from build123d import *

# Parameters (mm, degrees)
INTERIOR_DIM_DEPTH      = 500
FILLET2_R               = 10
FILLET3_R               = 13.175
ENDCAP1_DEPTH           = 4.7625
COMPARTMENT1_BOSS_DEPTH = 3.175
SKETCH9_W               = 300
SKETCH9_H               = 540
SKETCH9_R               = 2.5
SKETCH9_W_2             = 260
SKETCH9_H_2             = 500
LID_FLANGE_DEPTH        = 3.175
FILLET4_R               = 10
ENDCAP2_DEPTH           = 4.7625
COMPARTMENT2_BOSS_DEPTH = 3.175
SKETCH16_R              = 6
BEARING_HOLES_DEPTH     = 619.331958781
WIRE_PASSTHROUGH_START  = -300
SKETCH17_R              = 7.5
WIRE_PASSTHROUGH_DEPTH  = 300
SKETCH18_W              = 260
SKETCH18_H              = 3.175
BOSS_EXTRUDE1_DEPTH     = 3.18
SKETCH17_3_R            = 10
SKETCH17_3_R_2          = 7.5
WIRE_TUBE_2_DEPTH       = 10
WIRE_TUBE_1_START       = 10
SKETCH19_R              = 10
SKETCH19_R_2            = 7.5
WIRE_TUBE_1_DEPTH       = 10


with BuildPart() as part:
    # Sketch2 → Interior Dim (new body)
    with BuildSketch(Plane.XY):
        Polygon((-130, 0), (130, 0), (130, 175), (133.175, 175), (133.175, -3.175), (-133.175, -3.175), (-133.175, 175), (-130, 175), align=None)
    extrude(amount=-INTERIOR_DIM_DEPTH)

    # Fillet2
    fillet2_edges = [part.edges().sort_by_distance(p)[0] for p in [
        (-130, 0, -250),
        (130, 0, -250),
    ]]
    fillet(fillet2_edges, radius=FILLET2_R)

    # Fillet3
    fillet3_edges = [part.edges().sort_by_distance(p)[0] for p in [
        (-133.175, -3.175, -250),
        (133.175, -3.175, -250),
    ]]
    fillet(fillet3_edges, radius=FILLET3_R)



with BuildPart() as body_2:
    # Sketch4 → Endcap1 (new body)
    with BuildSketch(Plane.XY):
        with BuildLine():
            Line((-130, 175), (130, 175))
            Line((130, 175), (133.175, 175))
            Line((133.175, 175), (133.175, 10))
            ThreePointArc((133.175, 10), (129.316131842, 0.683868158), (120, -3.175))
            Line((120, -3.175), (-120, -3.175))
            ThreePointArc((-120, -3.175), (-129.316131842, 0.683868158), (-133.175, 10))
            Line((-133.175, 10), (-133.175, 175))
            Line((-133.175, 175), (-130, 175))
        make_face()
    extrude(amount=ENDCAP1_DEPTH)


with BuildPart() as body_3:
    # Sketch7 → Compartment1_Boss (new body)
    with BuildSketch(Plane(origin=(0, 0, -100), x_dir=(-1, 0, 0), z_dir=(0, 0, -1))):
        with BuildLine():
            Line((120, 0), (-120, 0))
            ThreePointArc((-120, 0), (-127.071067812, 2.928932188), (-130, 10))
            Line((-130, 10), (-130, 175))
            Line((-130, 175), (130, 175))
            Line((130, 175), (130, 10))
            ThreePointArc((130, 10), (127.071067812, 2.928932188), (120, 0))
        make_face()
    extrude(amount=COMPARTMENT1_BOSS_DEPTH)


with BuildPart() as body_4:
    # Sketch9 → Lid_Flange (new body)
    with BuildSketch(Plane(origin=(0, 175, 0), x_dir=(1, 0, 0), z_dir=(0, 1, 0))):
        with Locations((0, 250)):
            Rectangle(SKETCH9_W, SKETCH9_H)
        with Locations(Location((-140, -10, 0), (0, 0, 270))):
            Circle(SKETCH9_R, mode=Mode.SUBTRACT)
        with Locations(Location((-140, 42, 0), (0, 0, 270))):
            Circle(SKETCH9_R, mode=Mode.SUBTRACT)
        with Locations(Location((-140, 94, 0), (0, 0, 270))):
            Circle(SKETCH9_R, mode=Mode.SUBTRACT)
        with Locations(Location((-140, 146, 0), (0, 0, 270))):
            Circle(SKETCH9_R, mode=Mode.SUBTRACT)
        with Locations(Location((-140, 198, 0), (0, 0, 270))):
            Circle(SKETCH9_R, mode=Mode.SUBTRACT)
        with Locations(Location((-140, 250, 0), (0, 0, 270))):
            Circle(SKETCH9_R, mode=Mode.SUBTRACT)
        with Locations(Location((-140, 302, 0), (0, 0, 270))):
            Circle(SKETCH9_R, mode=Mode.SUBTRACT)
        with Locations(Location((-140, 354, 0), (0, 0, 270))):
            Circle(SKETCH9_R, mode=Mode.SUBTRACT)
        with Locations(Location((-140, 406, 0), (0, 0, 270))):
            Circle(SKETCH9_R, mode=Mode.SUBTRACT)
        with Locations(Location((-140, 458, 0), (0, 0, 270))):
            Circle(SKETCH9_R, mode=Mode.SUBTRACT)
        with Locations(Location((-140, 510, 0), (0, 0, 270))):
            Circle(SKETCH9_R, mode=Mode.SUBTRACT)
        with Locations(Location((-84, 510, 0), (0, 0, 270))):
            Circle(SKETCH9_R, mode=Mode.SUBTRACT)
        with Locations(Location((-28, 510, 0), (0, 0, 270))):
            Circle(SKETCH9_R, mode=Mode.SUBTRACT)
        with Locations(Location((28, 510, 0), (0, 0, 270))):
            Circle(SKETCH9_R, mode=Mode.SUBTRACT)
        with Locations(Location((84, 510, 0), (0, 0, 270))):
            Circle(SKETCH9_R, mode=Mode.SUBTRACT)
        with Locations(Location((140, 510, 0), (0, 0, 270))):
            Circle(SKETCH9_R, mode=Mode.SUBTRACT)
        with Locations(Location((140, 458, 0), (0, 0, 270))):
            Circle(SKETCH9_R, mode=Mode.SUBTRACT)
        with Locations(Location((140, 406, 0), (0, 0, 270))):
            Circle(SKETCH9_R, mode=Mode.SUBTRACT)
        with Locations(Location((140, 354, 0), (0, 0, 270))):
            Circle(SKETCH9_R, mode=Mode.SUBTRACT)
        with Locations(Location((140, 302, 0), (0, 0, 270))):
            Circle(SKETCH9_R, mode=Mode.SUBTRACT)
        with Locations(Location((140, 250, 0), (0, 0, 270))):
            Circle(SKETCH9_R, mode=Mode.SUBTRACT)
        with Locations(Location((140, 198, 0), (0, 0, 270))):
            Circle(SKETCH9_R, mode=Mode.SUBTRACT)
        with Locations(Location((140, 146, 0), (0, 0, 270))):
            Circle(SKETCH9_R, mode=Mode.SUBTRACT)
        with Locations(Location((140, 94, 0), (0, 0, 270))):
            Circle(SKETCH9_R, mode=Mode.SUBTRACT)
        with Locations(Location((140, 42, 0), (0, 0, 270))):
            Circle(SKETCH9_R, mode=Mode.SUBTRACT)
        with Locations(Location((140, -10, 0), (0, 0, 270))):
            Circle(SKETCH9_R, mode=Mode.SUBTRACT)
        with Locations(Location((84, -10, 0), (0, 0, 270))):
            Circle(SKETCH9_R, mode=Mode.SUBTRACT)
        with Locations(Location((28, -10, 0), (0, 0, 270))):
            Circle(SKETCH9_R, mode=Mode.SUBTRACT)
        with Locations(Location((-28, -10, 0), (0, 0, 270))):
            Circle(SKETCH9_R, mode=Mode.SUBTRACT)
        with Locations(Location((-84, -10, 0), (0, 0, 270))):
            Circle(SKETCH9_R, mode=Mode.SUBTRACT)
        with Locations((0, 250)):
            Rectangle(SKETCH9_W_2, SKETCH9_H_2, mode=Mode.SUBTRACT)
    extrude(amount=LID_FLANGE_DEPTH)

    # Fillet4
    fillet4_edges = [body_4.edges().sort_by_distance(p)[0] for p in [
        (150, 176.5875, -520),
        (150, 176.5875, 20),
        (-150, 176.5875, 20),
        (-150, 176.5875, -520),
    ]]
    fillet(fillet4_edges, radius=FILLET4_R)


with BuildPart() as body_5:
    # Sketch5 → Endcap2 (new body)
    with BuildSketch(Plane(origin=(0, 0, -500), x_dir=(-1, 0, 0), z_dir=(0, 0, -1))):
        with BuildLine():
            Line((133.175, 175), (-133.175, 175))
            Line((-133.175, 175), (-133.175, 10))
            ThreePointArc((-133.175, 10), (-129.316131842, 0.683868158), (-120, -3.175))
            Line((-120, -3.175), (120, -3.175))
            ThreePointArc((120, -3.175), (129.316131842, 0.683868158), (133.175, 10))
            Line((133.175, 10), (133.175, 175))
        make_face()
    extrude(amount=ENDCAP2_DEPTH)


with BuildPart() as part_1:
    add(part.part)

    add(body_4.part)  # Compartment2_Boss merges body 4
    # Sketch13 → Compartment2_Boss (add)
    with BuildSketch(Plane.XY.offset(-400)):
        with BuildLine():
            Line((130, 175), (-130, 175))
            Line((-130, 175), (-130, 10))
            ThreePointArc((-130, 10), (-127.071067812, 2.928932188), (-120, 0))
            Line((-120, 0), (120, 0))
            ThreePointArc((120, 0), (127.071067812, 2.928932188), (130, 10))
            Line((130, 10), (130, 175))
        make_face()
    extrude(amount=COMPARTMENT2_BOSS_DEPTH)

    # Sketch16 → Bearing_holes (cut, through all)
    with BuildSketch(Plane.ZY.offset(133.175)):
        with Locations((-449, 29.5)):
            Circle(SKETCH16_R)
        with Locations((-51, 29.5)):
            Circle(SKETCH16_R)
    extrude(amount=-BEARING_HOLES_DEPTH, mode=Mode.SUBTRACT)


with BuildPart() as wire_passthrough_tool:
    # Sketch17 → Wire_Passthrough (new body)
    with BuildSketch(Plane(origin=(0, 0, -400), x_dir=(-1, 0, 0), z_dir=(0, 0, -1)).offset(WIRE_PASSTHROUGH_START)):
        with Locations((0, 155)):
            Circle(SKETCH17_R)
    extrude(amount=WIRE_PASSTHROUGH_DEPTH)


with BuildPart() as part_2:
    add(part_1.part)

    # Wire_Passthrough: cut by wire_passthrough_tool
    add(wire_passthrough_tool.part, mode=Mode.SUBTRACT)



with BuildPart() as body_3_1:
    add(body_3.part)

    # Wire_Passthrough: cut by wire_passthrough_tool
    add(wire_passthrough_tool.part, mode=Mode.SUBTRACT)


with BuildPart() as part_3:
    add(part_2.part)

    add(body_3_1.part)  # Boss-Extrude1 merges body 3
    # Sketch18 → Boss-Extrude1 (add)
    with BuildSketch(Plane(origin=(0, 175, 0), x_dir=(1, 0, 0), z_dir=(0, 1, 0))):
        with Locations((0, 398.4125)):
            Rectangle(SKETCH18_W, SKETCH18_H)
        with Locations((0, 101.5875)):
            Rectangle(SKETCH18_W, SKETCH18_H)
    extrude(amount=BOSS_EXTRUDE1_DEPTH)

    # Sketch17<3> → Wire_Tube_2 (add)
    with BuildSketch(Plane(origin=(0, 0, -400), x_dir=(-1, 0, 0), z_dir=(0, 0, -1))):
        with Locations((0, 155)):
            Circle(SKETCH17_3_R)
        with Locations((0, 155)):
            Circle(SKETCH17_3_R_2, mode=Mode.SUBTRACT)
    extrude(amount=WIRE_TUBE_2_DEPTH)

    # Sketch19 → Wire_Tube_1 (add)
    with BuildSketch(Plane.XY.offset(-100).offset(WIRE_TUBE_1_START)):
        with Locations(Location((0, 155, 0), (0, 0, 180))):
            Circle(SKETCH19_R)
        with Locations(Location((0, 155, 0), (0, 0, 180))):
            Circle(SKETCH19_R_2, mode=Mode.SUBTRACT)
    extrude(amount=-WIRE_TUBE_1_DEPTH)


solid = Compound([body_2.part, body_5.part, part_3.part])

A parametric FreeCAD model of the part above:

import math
import FreeCAD as App
import Part
import Sketcher


def edges_at(feature, points):
    """Names of the edges that pass closest to the given points."""
    edges = feature.Shape.Edges
    near = lambda p: min(range(len(edges)), key=lambda i: edges[i].distToShape(Part.Vertex(*p))[0])
    return sorted({f"Edge{near(p) + 1}" for p in points})


def add_polygon(sketch, points):
    """Adds a closed chain of lines whose ends are joined by coincident constraints."""
    first, n = sketch.GeometryCount, len(points)
    for a, b in zip(points, points[1:] + points[:1]):
        sketch.addGeometry(Part.LineSegment(App.Vector(*a, 0), App.Vector(*b, 0)), False)
    for i in range(n):
        sketch.addConstraint(Sketcher.Constraint("Coincident", first + i, 2, first + (i + 1) % n, 1))

doc = App.newDocument("Part")
body = doc.addObject("PartDesign::Body", "Body")

# Sketch on XY plane
sketch1 = body.newObject("Sketcher::SketchObject", "Sketch")
sketch1.AttachmentSupport = (doc.getObject("XY_Plane"), [""])
sketch1.MapMode = "FlatFace"
add_polygon(sketch1, [(130, 0), (-130, 0), (-130, 175), (-133.2, 175), (-133.2, -3.2), (133.2, -3.2), (133.2, 175), (130, 175)])  # lines 0-7
sketch1.addConstraint([
    Sketcher.Constraint("Horizontal", 0),
    Sketcher.Constraint("Vertical", 1),
    Sketcher.Constraint("Horizontal", 2),
    Sketcher.Constraint("Vertical", 3),
    Sketcher.Constraint("Horizontal", 4),
    Sketcher.Constraint("Vertical", 5),
    Sketcher.Constraint("Horizontal", 6),
    Sketcher.Constraint("Vertical", 7),
    Sketcher.Constraint("Symmetric", 0, 2, 7, 2, -1, 1),
    Sketcher.Constraint("Symmetric", 2, 2, 5, 2, -2),
    Sketcher.Constraint("DistanceX", 0, 2, 0, 1, 260.0),
    Sketcher.Constraint("DistanceY", 1, 1, 1, 2, 175.0),
    Sketcher.Constraint("DistanceX", 4, 1, 4, 2, 266.35),
    Sketcher.Constraint("DistanceY", 3, 2, 3, 1, 178.175),
])
pad1 = body.newObject("PartDesign::Pad", "Pad")
pad1.Profile = sketch1
pad1.Length = 500
pad1.Reversed = True
doc.recompute()

fillet = body.newObject("PartDesign::Fillet", "Fillet")
fillet.Base = (pad1, edges_at(pad1, [(-130, 0, -250), (130, 0, -250)]))
fillet.Radius = 10
doc.recompute()

fillet2 = body.newObject("PartDesign::Fillet", "Fillet001")
fillet2.Base = (fillet, edges_at(fillet, [(-133.175, -3.175, -250), (133.175, -3.175, -250)]))
fillet2.Radius = 13.175
body2 = doc.addObject("PartDesign::Body", "Body001")

# Sketch on XY plane
sketch2 = body2.newObject("Sketcher::SketchObject", "Sketch001")
sketch2.AttachmentSupport = (doc.getObject("XY_Plane001"), [""])
sketch2.MapMode = "FlatFace"
sketch2.addGeometry([
    Part.LineSegment(App.Vector(133, 10, 0), App.Vector(133, 175, 0)),  # 0
    Part.LineSegment(App.Vector(133, 175, 0), App.Vector(-133, 175, 0)),  # 1
    Part.LineSegment(App.Vector(-133, 175, 0), App.Vector(-133, 10, 0)),  # 2
    Part.ArcOfCircle(Part.Circle(App.Vector(-120, 10, 0), App.Vector(0, 0, 1), 13), math.radians(180), math.radians(270)),  # 3
    Part.LineSegment(App.Vector(-120, -3, 0), App.Vector(120, -3, 0)),  # 4
    Part.ArcOfCircle(Part.Circle(App.Vector(120, 10, 0), App.Vector(0, 0, 1), 13), math.radians(-90), math.radians(0)),  # 5
], False)
sketch2.addConstraint([
    Sketcher.Constraint("Coincident", 0, 2, 1, 1),
    Sketcher.Constraint("Coincident", 1, 2, 2, 1),
    Sketcher.Constraint("Tangent", 2, 2, 3, 1),
    Sketcher.Constraint("Tangent", 3, 2, 4, 1),
    Sketcher.Constraint("Tangent", 4, 2, 5, 1),
    Sketcher.Constraint("Tangent", 5, 2, 0, 1),
    Sketcher.Constraint("Vertical", 0),
    Sketcher.Constraint("Horizontal", 1),
    Sketcher.Constraint("Vertical", 2),
    Sketcher.Constraint("Horizontal", 4),
    Sketcher.Constraint("Equal", 3, 5),
    Sketcher.Constraint("DistanceX", 4, 1, 4, 2, 240.0),
    Sketcher.Constraint("DistanceY", 0, 1, 0, 2, 165.0),
    Sketcher.Constraint("DistanceX", 3, 3, -1, 1, 120.0),
    Sketcher.Constraint("DistanceY", -1, 1, 3, 3, 10.0),
    Sketcher.Constraint("Radius", 3, 13.175),
])
pad2 = body2.newObject("PartDesign::Pad", "Pad001")
pad2.Profile = sketch2
pad2.Length = 4.7625
body3 = doc.addObject("PartDesign::Body", "Body002")

# Sketch on XY plane
sketch3 = body3.newObject("Sketcher::SketchObject", "Sketch002")
sketch3.AttachmentSupport = (doc.getObject("XY_Plane002"), [""])
sketch3.MapMode = "FlatFace"
sketch3.AttachmentOffset = App.Placement(App.Vector(0, 0, -100), App.Rotation())
sketch3.addGeometry([
    Part.LineSegment(App.Vector(120, 0, 0), App.Vector(-120, 0, 0)),  # 0
    Part.ArcOfCircle(Part.Circle(App.Vector(-120, 10, 0), App.Vector(0, 0, 1), 10), math.radians(180), math.radians(270)),  # 1
    Part.LineSegment(App.Vector(-130, 10, 0), App.Vector(-130, 175, 0)),  # 2
    Part.LineSegment(App.Vector(-130, 175, 0), App.Vector(130, 175, 0)),  # 3
    Part.LineSegment(App.Vector(130, 175, 0), App.Vector(130, 10, 0)),  # 4
    Part.ArcOfCircle(Part.Circle(App.Vector(120, 10, 0), App.Vector(0, 0, 1), 10), math.radians(-90), math.radians(0)),  # 5
], False)
sketch3.addConstraint([
    Sketcher.Constraint("Tangent", 0, 2, 1, 2),
    Sketcher.Constraint("Tangent", 1, 1, 2, 1),
    Sketcher.Constraint("Coincident", 2, 2, 3, 1),
    Sketcher.Constraint("Coincident", 3, 2, 4, 1),
    Sketcher.Constraint("Tangent", 4, 2, 5, 2),
    Sketcher.Constraint("Tangent", 5, 1, 0, 1),
    Sketcher.Constraint("Horizontal", 0),
    Sketcher.Constraint("Vertical", 2),
    Sketcher.Constraint("Horizontal", 3),
    Sketcher.Constraint("Vertical", 4),
    Sketcher.Constraint("Equal", 1, 5),
    Sketcher.Constraint("Symmetric", 0, 2, 5, 1, -1, 1),
    Sketcher.Constraint("Radius", 1, 10.0),
    Sketcher.Constraint("DistanceX", 0, 2, 0, 1, 240.0),
    Sketcher.Constraint("DistanceY", 2, 1, 2, 2, 165.0),
])
pad3 = body3.newObject("PartDesign::Pad", "Pad002")
pad3.Profile = sketch3
pad3.Length = 3.175
pad3.Reversed = True
body4 = doc.addObject("PartDesign::Body", "Body003")

# Sketch on XZ plane
sketch4 = body4.newObject("Sketcher::SketchObject", "Sketch003")
sketch4.AttachmentSupport = (doc.getObject("XZ_Plane003"), [""])
sketch4.MapMode = "FlatFace"
sketch4.AttachmentOffset = App.Placement(App.Vector(0, 0, -175), App.Rotation())
add_polygon(sketch4, [(-150, -520), (-150, 20), (150, 20), (150, -520)])  # lines 0-3
sketch4.addGeometry(Part.Circle(App.Vector(-140, 10, 0), App.Vector(0, 0, 1), 2.5), False)  # 4
sketch4.addGeometry(Part.Circle(App.Vector(-140, -42, 0), App.Vector(0, 0, 1), 2.5), False)  # 5
sketch4.addGeometry(Part.Circle(App.Vector(-84, 10, 0), App.Vector(0, 0, 1), 2.5), False)  # 6
sketch4.addGeometry(Part.Circle(App.Vector(-140, -94, 0), App.Vector(0, 0, 1), 2.5), False)  # 7
sketch4.addGeometry(Part.Circle(App.Vector(-28, 10, 0), App.Vector(0, 0, 1), 2.5), False)  # 8
sketch4.addGeometry(Part.Circle(App.Vector(-140, -146, 0), App.Vector(0, 0, 1), 2.5), False)  # 9
sketch4.addGeometry(Part.Circle(App.Vector(-140, -198, 0), App.Vector(0, 0, 1), 2.5), False)  # 10
sketch4.addGeometry(Part.Circle(App.Vector(28, 10, 0), App.Vector(0, 0, 1), 2.5), False)  # 11
sketch4.addGeometry(Part.Circle(App.Vector(84, 10, 0), App.Vector(0, 0, 1), 2.5), False)  # 12
sketch4.addGeometry(Part.Circle(App.Vector(140, 10, 0), App.Vector(0, 0, 1), 2.5), False)  # 13
sketch4.addGeometry(Part.Circle(App.Vector(140, -42, 0), App.Vector(0, 0, 1), 2.5), False)  # 14
sketch4.addGeometry(Part.Circle(App.Vector(140, -94, 0), App.Vector(0, 0, 1), 2.5), False)  # 15
sketch4.addGeometry(Part.Circle(App.Vector(140, -146, 0), App.Vector(0, 0, 1), 2.5), False)  # 16
sketch4.addGeometry(Part.Circle(App.Vector(140, -198, 0), App.Vector(0, 0, 1), 2.5), False)  # 17
sketch4.addGeometry(Part.Circle(App.Vector(-140, -250, 0), App.Vector(0, 0, 1), 2.5), False)  # 18
sketch4.addGeometry(Part.Circle(App.Vector(-140, -302, 0), App.Vector(0, 0, 1), 2.5), False)  # 19
sketch4.addGeometry(Part.Circle(App.Vector(-140, -354, 0), App.Vector(0, 0, 1), 2.5), False)  # 20
sketch4.addGeometry(Part.Circle(App.Vector(-140, -406, 0), App.Vector(0, 0, 1), 2.5), False)  # 21
sketch4.addGeometry(Part.Circle(App.Vector(-140, -458, 0), App.Vector(0, 0, 1), 2.5), False)  # 22
sketch4.addGeometry(Part.Circle(App.Vector(-140, -510, 0), App.Vector(0, 0, 1), 2.5), False)  # 23
sketch4.addGeometry(Part.Circle(App.Vector(-84, -510, 0), App.Vector(0, 0, 1), 2.5), False)  # 24
sketch4.addGeometry(Part.Circle(App.Vector(-28, -510, 0), App.Vector(0, 0, 1), 2.5), False)  # 25
add_polygon(sketch4, [(130, 0), (-130, 0), (-130, -500), (130, -500)])  # lines 26-29
sketch4.addGeometry(Part.Circle(App.Vector(140, -250, 0), App.Vector(0, 0, 1), 2.5), False)  # 30
sketch4.addGeometry(Part.Circle(App.Vector(140, -302, 0), App.Vector(0, 0, 1), 2.5), False)  # 31
sketch4.addGeometry(Part.Circle(App.Vector(140, -354, 0), App.Vector(0, 0, 1), 2.5), False)  # 32
sketch4.addGeometry(Part.Circle(App.Vector(28, -510, 0), App.Vector(0, 0, 1), 2.5), False)  # 33
sketch4.addGeometry(Part.Circle(App.Vector(140, -406, 0), App.Vector(0, 0, 1), 2.5), False)  # 34
sketch4.addGeometry(Part.Circle(App.Vector(84, -510, 0), App.Vector(0, 0, 1), 2.5), False)  # 35
sketch4.addGeometry(Part.Circle(App.Vector(140, -458, 0), App.Vector(0, 0, 1), 2.5), False)  # 36
sketch4.addGeometry(Part.Circle(App.Vector(140, -510, 0), App.Vector(0, 0, 1), 2.5), False)  # 37
sketch4.addConstraint([
    Sketcher.Constraint("Vertical", 0),
    Sketcher.Constraint("Horizontal", 1),
    Sketcher.Constraint("Vertical", 2),
    Sketcher.Constraint("Horizontal", 3),
    Sketcher.Constraint("Horizontal", 26),
    Sketcher.Constraint("Vertical", 27),
    Sketcher.Constraint("Horizontal", 28),
    Sketcher.Constraint("Vertical", 29),
    Sketcher.Constraint("Equal", 4, 5),
    Sketcher.Constraint("Equal", 5, 6),
    Sketcher.Constraint("Equal", 6, 7),
    Sketcher.Constraint("Equal", 7, 8),
    Sketcher.Constraint("Equal", 8, 9),
    Sketcher.Constraint("Equal", 9, 10),
    Sketcher.Constraint("Equal", 10, 11),
    Sketcher.Constraint("Equal", 11, 12),
    Sketcher.Constraint("Equal", 12, 13),
    Sketcher.Constraint("Equal", 13, 14),
    Sketcher.Constraint("Equal", 14, 15),
    Sketcher.Constraint("Equal", 15, 16),
    Sketcher.Constraint("Equal", 16, 17),
    Sketcher.Constraint("Equal", 17, 18),
    Sketcher.Constraint("Equal", 18, 19),
    Sketcher.Constraint("Equal", 19, 20),
    Sketcher.Constraint("Equal", 20, 21),
    Sketcher.Constraint("Equal", 21, 22),
    Sketcher.Constraint("Equal", 22, 23),
    Sketcher.Constraint("Equal", 23, 24),
    Sketcher.Constraint("Equal", 24, 25),
    Sketcher.Constraint("Equal", 25, 30),
    Sketcher.Constraint("Equal", 30, 31),
    Sketcher.Constraint("Equal", 31, 32),
    Sketcher.Constraint("Equal", 32, 33),
    Sketcher.Constraint("Equal", 33, 34),
    Sketcher.Constraint("Equal", 34, 35),
    Sketcher.Constraint("Equal", 35, 36),
    Sketcher.Constraint("Equal", 36, 37),
    Sketcher.Constraint("Symmetric", 26, 2, 29, 2, -1, 1),
    Sketcher.Constraint("Symmetric", 8, 3, 11, 3, -2),
    Sketcher.Constraint("Symmetric", 6, 3, 12, 3, -2),
    Sketcher.Constraint("Symmetric", 4, 3, 13, 3, -2),
    Sketcher.Constraint("Symmetric", 5, 3, 14, 3, -2),
    Sketcher.Constraint("Symmetric", 7, 3, 15, 3, -2),
    Sketcher.Constraint("Symmetric", 9, 3, 16, 3, -2),
    Sketcher.Constraint("Symmetric", 10, 3, 17, 3, -2),
    Sketcher.Constraint("Symmetric", 18, 3, 30, 3, -2),
    Sketcher.Constraint("Symmetric", 19, 3, 31, 3, -2),
    Sketcher.Constraint("Symmetric", 20, 3, 32, 3, -2),
    Sketcher.Constraint("Symmetric", 25, 3, 33, 3, -2),
    Sketcher.Constraint("Symmetric", 21, 3, 34, 3, -2),
    Sketcher.Constraint("Symmetric", 24, 3, 35, 3, -2),
    Sketcher.Constraint("Symmetric", 22, 3, 36, 3, -2),
    Sketcher.Constraint("Symmetric", 23, 3, 37, 3, -2),
    Sketcher.Constraint("Horizontal", 4, 3, 6, 3),
    Sketcher.Constraint("Horizontal", 6, 3, 8, 3),
    Sketcher.Constraint("Horizontal", 23, 3, 24, 3),
    Sketcher.Constraint("Horizontal", 24, 3, 25, 3),
    Sketcher.Constraint("Vertical", 4, 3, 5, 3),
    Sketcher.Constraint("Vertical", 5, 3, 7, 3),
    Sketcher.Constraint("Vertical", 7, 3, 9, 3),
    Sketcher.Constraint("Vertical", 9, 3, 10, 3),
    Sketcher.Constraint("Vertical", 10, 3, 18, 3),
    Sketcher.Constraint("Vertical", 18, 3, 19, 3),
    Sketcher.Constraint("Vertical", 19, 3, 20, 3),
    Sketcher.Constraint("Vertical", 20, 3, 21, 3),
    Sketcher.Constraint("Vertical", 21, 3, 22, 3),
    Sketcher.Constraint("Vertical", 22, 3, 23, 3),
    Sketcher.Constraint("Vertical", 6, 3, 24, 3),
    Sketcher.Constraint("Vertical", 8, 3, 25, 3),
    Sketcher.Constraint("Diameter", 4, 5.0),
    Sketcher.Constraint("DistanceX", 1, 1, 1, 2, 300.0),
    Sketcher.Constraint("DistanceX", 26, 2, 26, 1, 260.0),
    Sketcher.Constraint("DistanceY", 0, 1, 0, 2, 540.0),
    Sketcher.Constraint("DistanceY", 27, 2, 27, 1, 500.0),
    Sketcher.Constraint("DistanceX", 4, 3, -1, 1, 140.0),
    Sketcher.Constraint("DistanceY", -1, 1, 4, 3, 10.0),
    Sketcher.Constraint("DistanceY", 5, 3, -1, 1, 42.0),
    Sketcher.Constraint("DistanceX", 6, 3, -1, 1, 84.0),
    Sketcher.Constraint("DistanceY", 7, 3, -1, 1, 94.0),
    Sketcher.Constraint("DistanceX", 8, 3, -1, 1, 28.0),
    Sketcher.Constraint("DistanceY", 9, 3, -1, 1, 146.0),
    Sketcher.Constraint("DistanceY", 10, 3, -1, 1, 198.0),
    Sketcher.Constraint("DistanceY", 18, 3, -1, 1, 250.0),
    Sketcher.Constraint("DistanceY", 19, 3, -1, 1, 302.0),
    Sketcher.Constraint("DistanceY", 20, 3, -1, 1, 354.0),
    Sketcher.Constraint("DistanceY", 21, 3, -1, 1, 406.0),
    Sketcher.Constraint("DistanceY", 22, 3, -1, 1, 458.0),
    Sketcher.Constraint("DistanceY", 23, 3, -1, 1, 510.0),
    Sketcher.Constraint("DistanceX", 0, 2, -1, 1, 150.0),
    Sketcher.Constraint("DistanceY", -1, 1, 0, 2, 20.0),
])
pad4 = body4.newObject("PartDesign::Pad", "Pad003")
pad4.Profile = sketch4
pad4.Length = 3.175
pad4.Reversed = True
doc.recompute()

fillet3 = body4.newObject("PartDesign::Fillet", "Fillet002")
fillet3.Base = (pad4, edges_at(pad4, [
    (150, 176.588, -520),
    (150, 176.588, 20),
    (-150, 176.588, 20),
    (-150, 176.588, -520),
]))
fillet3.Radius = 10
body5 = doc.addObject("PartDesign::Body", "Body004")

# Sketch on XY plane
sketch5 = body5.newObject("Sketcher::SketchObject", "Sketch004")
sketch5.AttachmentSupport = (doc.getObject("XY_Plane004"), [""])
sketch5.MapMode = "FlatFace"
sketch5.AttachmentOffset = App.Placement(App.Vector(0, 0, -500), App.Rotation())
sketch5.addGeometry([
    Part.LineSegment(App.Vector(-133, 175, 0), App.Vector(133, 175, 0)),  # 0
    Part.LineSegment(App.Vector(133, 175, 0), App.Vector(133, 10, 0)),  # 1
    Part.ArcOfCircle(Part.Circle(App.Vector(120, 10, 0), App.Vector(0, 0, 1), 13), math.radians(-90), math.radians(0)),  # 2
    Part.LineSegment(App.Vector(120, -3, 0), App.Vector(-120, -3, 0)),  # 3
    Part.ArcOfCircle(Part.Circle(App.Vector(-120, 10, 0), App.Vector(0, 0, 1), 13), math.radians(180), math.radians(270)),  # 4
    Part.LineSegment(App.Vector(-133, 10, 0), App.Vector(-133, 175, 0)),  # 5
], False)
sketch5.addConstraint([
    Sketcher.Constraint("Coincident", 0, 2, 1, 1),
    Sketcher.Constraint("Tangent", 1, 2, 2, 2),
    Sketcher.Constraint("Tangent", 2, 1, 3, 1),
    Sketcher.Constraint("Tangent", 3, 2, 4, 2),
    Sketcher.Constraint("Tangent", 4, 1, 5, 1),
    Sketcher.Constraint("Coincident", 5, 2, 0, 1),
    Sketcher.Constraint("Horizontal", 0),
    Sketcher.Constraint("Vertical", 1),
    Sketcher.Constraint("Horizontal", 3),
    Sketcher.Constraint("Vertical", 5),
    Sketcher.Constraint("Equal", 2, 4),
    Sketcher.Constraint("DistanceX", 3, 2, 3, 1, 240.0),
    Sketcher.Constraint("DistanceY", 1, 2, 1, 1, 165.0),
    Sketcher.Constraint("DistanceX", -1, 1, 2, 3, 120.0),
    Sketcher.Constraint("DistanceY", -1, 1, 2, 3, 10.0),
    Sketcher.Constraint("Radius", 2, 13.175),
])
pad5 = body5.newObject("PartDesign::Pad", "Pad004")
pad5.Profile = sketch5
pad5.Length = 4.7625
pad5.Reversed = True
doc.recompute()

boolean = body.newObject("PartDesign::Boolean", "Boolean")
boolean.Type = "Fuse"
boolean.addObjects([body4])

# Sketch on XY plane
sketch6 = body.newObject("Sketcher::SketchObject", "Sketch005")
sketch6.AttachmentSupport = (doc.getObject("XY_Plane"), [""])
sketch6.MapMode = "FlatFace"
sketch6.AttachmentOffset = App.Placement(App.Vector(0, 0, -400), App.Rotation())
sketch6.addGeometry([
    Part.LineSegment(App.Vector(130, 175, 0), App.Vector(-130, 175, 0)),  # 0
    Part.LineSegment(App.Vector(-130, 175, 0), App.Vector(-130, 10, 0)),  # 1
    Part.ArcOfCircle(Part.Circle(App.Vector(-120, 10, 0), App.Vector(0, 0, 1), 10), math.radians(180), math.radians(270)),  # 2
    Part.LineSegment(App.Vector(-120, 0, 0), App.Vector(120, 0, 0)),  # 3
    Part.ArcOfCircle(Part.Circle(App.Vector(120, 10, 0), App.Vector(0, 0, 1), 10), math.radians(-90), math.radians(0)),  # 4
    Part.LineSegment(App.Vector(130, 10, 0), App.Vector(130, 175, 0)),  # 5
], False)
sketch6.addConstraint([
    Sketcher.Constraint("Coincident", 0, 2, 1, 1),
    Sketcher.Constraint("Tangent", 1, 2, 2, 1),
    Sketcher.Constraint("Tangent", 2, 2, 3, 1),
    Sketcher.Constraint("Tangent", 3, 2, 4, 1),
    Sketcher.Constraint("Tangent", 4, 2, 5, 1),
    Sketcher.Constraint("Coincident", 5, 2, 0, 1),
    Sketcher.Constraint("Horizontal", 0),
    Sketcher.Constraint("Vertical", 1),
    Sketcher.Constraint("Horizontal", 3),
    Sketcher.Constraint("Vertical", 5),
    Sketcher.Constraint("Equal", 2, 4),
    Sketcher.Constraint("Symmetric", 2, 2, 3, 2, -1, 1),
    Sketcher.Constraint("Radius", 2, 10.0),
    Sketcher.Constraint("DistanceX", 0, 2, 0, 1, 260.0),
    Sketcher.Constraint("DistanceY", 1, 2, 1, 1, 165.0),
])
pad6 = body.newObject("PartDesign::Pad", "Pad005")
pad6.Profile = sketch6
pad6.Length = 3.175

# Sketch on YZ plane
sketch7 = body.newObject("Sketcher::SketchObject", "Sketch006")
sketch7.AttachmentSupport = (doc.getObject("YZ_Plane"), [""])
sketch7.MapMode = "FlatFace"
sketch7.AttachmentOffset = App.Placement(App.Vector(0, 0, -133.175), App.Rotation())
sketch7.addGeometry([
    Part.Circle(App.Vector(30, -449, 0), App.Vector(0, 0, 1), 6),
    Part.Circle(App.Vector(30, -51, 0), App.Vector(0, 0, 1), 6),
], False)
sketch7.addConstraint([
    Sketcher.Constraint("Equal", 0, 1),
    Sketcher.Constraint("Vertical", 0, 3, 1, 3),
    Sketcher.Constraint("Diameter", 0, 12.0),
    Sketcher.Constraint("DistanceY", 0, 3, -1, 1, 449.0),
    Sketcher.Constraint("DistanceY", 1, 3, -1, 1, 51.0),
    Sketcher.Constraint("DistanceX", -1, 1, 0, 3, 29.5),
])
pocket1 = body.newObject("PartDesign::Pocket", "Pocket")
pocket1.Profile = sketch7
pocket1.Type = "ThroughAll"
pocket1.Reversed = True
body6 = doc.addObject("PartDesign::Body", "Body005")

# Sketch on XY plane
sketch8 = body6.newObject("Sketcher::SketchObject", "Sketch007")
sketch8.AttachmentSupport = (doc.getObject("XY_Plane005"), [""])
sketch8.MapMode = "FlatFace"
sketch8.AttachmentOffset = App.Placement(App.Vector(0, 0, -100), App.Rotation())
sketch8.addGeometry(Part.Circle(App.Vector(0, 155, 0), App.Vector(0, 0, 1), 8), False)
sketch8.addConstraint([
    Sketcher.Constraint("PointOnObject", 0, 3, -2),
    Sketcher.Constraint("Diameter", 0, 15.0),
    Sketcher.Constraint("DistanceY", -1, 1, 0, 3, 155.0),
])
pad7 = body6.newObject("PartDesign::Pad", "Pad006")
pad7.Profile = sketch8
pad7.Length = 300
pad7.Reversed = True
doc.recompute()

body7 = doc.addObject("PartDesign::Body", "Body006")
body7.BaseFeature = body6
boolean2 = body.newObject("PartDesign::Boolean", "Boolean001")
boolean2.Type = "Cut"
boolean2.addObjects([body7])
doc.recompute()

boolean3 = body3.newObject("PartDesign::Boolean", "Boolean002")
boolean3.Type = "Cut"
boolean3.addObjects([body6])
doc.recompute()

boolean4 = body.newObject("PartDesign::Boolean", "Boolean003")
boolean4.Type = "Fuse"
boolean4.addObjects([body3])

# Sketch on XZ plane
sketch9 = body.newObject("Sketcher::SketchObject", "Sketch008")
sketch9.AttachmentSupport = (doc.getObject("XZ_Plane"), [""])
sketch9.MapMode = "FlatFace"
sketch9.AttachmentOffset = App.Placement(App.Vector(0, 0, -175), App.Rotation())
add_polygon(sketch9, [(-130, -400), (-130, -396.8), (130, -396.8), (130, -400)])  # lines 0-3
add_polygon(sketch9, [(-130, -103.2), (-130, -100), (130, -100), (130, -103.2)])  # lines 4-7
sketch9.addConstraint([
    Sketcher.Constraint("Vertical", 0),
    Sketcher.Constraint("Horizontal", 1),
    Sketcher.Constraint("Vertical", 2),
    Sketcher.Constraint("Horizontal", 3),
    Sketcher.Constraint("Vertical", 4),
    Sketcher.Constraint("Horizontal", 5),
    Sketcher.Constraint("Vertical", 6),
    Sketcher.Constraint("Horizontal", 7),
    Sketcher.Constraint("Vertical", 3, 2, 4, 2),
    Sketcher.Constraint("Vertical", 2, 2, 5, 2),
    Sketcher.Constraint("Equal", 2, 4),
    Sketcher.Constraint("DistanceX", 1, 1, 1, 2, 260.0),
    Sketcher.Constraint("DistanceX", 0, 2, -1, 1, 130.0),
    Sketcher.Constraint("DistanceY", 2, 2, -1, 1, 400.0),
    Sketcher.Constraint("DistanceY", 4, 2, -1, 1, 100.0),
    Sketcher.Constraint("DistanceY", 0, 1, 0, 2, 3.175),
])
pad8 = body.newObject("PartDesign::Pad", "Pad007")
pad8.Profile = sketch9
pad8.Length = 3.18
pad8.Reversed = True

# Sketch on XY plane
sketch10 = body.newObject("Sketcher::SketchObject", "Sketch009")
sketch10.AttachmentSupport = (doc.getObject("XY_Plane"), [""])
sketch10.MapMode = "FlatFace"
sketch10.AttachmentOffset = App.Placement(App.Vector(0, 0, -400), App.Rotation())
sketch10.addGeometry([
    Part.Circle(App.Vector(0, 155, 0), App.Vector(0, 0, 1), 10),
    Part.Circle(App.Vector(0, 155, 0), App.Vector(0, 0, 1), 8),
], False)
sketch10.addConstraint([
    Sketcher.Constraint("Coincident", 1, 3, 0, 3),
    Sketcher.Constraint("PointOnObject", 0, 3, -2),
    Sketcher.Constraint("Diameter", 0, 20.0),
    Sketcher.Constraint("Diameter", 1, 15.0),
    Sketcher.Constraint("DistanceY", -1, 1, 0, 3, 155.0),
])
pad9 = body.newObject("PartDesign::Pad", "Pad008")
pad9.Profile = sketch10
pad9.Length = 10
pad9.Reversed = True

# Sketch on XY plane
sketch11 = body.newObject("Sketcher::SketchObject", "Sketch010")
sketch11.AttachmentSupport = (doc.getObject("XY_Plane"), [""])
sketch11.MapMode = "FlatFace"
sketch11.AttachmentOffset = App.Placement(App.Vector(0, 0, -90), App.Rotation())
sketch11.addGeometry([
    Part.Circle(App.Vector(0, 155, 0), App.Vector(0, 0, 1), 10),
    Part.Circle(App.Vector(0, 155, 0), App.Vector(0, 0, 1), 8),
], False)
sketch11.addConstraint([
    Sketcher.Constraint("Coincident", 1, 3, 0, 3),
    Sketcher.Constraint("PointOnObject", 0, 3, -2),
    Sketcher.Constraint("Diameter", 0, 20.0),
    Sketcher.Constraint("Diameter", 1, 15.0),
    Sketcher.Constraint("DistanceY", -1, 1, 0, 3, 155.0),
])
pad10 = body.newObject("PartDesign::Pad", "Pad009")
pad10.Profile = sketch11
pad10.Length = 10
pad10.Reversed = True

doc.recompute()
